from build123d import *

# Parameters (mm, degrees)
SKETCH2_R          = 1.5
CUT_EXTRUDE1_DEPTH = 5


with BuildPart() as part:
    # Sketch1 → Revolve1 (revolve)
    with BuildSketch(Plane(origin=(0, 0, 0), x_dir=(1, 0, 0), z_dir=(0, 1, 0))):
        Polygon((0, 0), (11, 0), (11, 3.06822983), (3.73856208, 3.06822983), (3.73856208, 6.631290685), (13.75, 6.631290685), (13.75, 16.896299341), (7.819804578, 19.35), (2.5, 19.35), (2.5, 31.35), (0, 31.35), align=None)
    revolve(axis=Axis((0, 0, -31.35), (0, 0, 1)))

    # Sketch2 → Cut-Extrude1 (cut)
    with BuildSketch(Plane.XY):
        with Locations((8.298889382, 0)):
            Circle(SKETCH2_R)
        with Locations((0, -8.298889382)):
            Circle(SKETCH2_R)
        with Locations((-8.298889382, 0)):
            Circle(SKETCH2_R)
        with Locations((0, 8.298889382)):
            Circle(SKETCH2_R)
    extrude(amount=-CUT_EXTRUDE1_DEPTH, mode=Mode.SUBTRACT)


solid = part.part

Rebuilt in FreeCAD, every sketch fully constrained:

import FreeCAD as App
import Part
import Sketcher


def add_polygon(sketch, points):
    """Adds a closed chain of lines whose ends are joined by coincident constraints."""
    first, n = sketch.GeometryCount, len(points)
    for a, b in zip(points, points[1:] + points[:1]):
        sketch.addGeometry(Part.LineSegment(App.Vector(*a, 0), App.Vector(*b, 0)), False)
    for i in range(n):
        sketch.addConstraint(Sketcher.Constraint("Coincident", first + i, 2, first + (i + 1) % n, 1))

doc = App.newDocument("Part")
body = doc.addObject("PartDesign::Body", "Body")

# Sketch on XZ plane
sketch1 = body.newObject("Sketcher::SketchObject", "Sketch")
sketch1.AttachmentSupport = (doc.getObject("XZ_Plane"), [""])
sketch1.MapMode = "FlatFace"
add_polygon(sketch1, [(0, 0), (11, 0), (11, -3.1), (3.7, -3.1), (3.7, -6.6), (13.8, -6.6), (13.8, -16.9), (7.8, -19.4), (2.5, -19.4), (2.5, -31.4), (0, -31.4)])  # lines 0-10
sketch1.addConstraint(Sketcher.Constraint("Horizontal", 0))
sketch1.addConstraint(Sketcher.Constraint("Vertical", 1))
sketch1.addConstraint(Sketcher.Constraint("Horizontal", 2))
sketch1.addConstraint(Sketcher.Constraint("Vertical", 3))
sketch1.addConstraint(Sketcher.Constraint("Horizontal", 4))
sketch1.addConstraint(Sketcher.Constraint("Vertical", 5))
sketch1.addConstraint(Sketcher.Constraint("Horizontal", 7))
sketch1.addConstraint(Sketcher.Constraint("Vertical", 8))
sketch1.addConstraint(Sketcher.Constraint("Horizontal", 9))
sketch1.addConstraint(Sketcher.Constraint("Vertical", 10))
sketch1.addConstraint(Sketcher.Constraint("Coincident", 10, 2, -1, 1))
sketch1.addConstraint(Sketcher.Constraint("DistanceX", 0, 1, 0, 2, 11.0))
sketch1.addConstraint(Sketcher.Constraint("DistanceY", 8, 2, 8, 1, 12.0))
sketch1.addConstraint(Sketcher.Constraint("DistanceX", 9, 2, 9, 1, 2.5))
sketch1.addConstraint(Sketcher.Constraint("DistanceY", 10, 1, 10, 2, 31.35))
sketch1.addConstraint(Sketcher.Constraint("DistanceX", -1, 1, 4, 2, 13.75))
sketch1.addConstraint(Sketcher.Constraint("DistanceY", 1, 2, 1, 1, 3.06823))
sketch1.addConstraint(Sketcher.Constraint("DistanceY", 3, 2, 3, 1, 3.563061))
sketch1.addConstraint(Sketcher.Constraint("DistanceY", 5, 2, 5, 1, 10.265009))
sketch1.addConstraint(Sketcher.Constraint("DistanceX", 2, 2, 2, 1, 7.261438))
sketch1.addConstraint(Sketcher.Constraint("DistanceX", 7, 2, 7, 1, 5.319805))
revolution = body.newObject("PartDesign::Revolution", "Revolution")
revolution.Profile = sketch1
revolution.ReferenceAxis = (sketch1, ["V_Axis"])
revolution.Angle = 360

# Sketch on XY plane
sketch2 = body.newObject("Sketcher::SketchObject", "Sketch001")
sketch2.AttachmentSupport = (doc.getObject("XY_Plane"), [""])
sketch2.MapMode = "FlatFace"
sketch2.addGeometry(Part.Circle(App.Vector(8.3, 0, 0), App.Vector(0, 0, 1), 1.5), False)
sketch2.addGeometry(Part.Circle(App.Vector(0, -8.3, 0), App.Vector(0, 0, 1), 1.5), False)
sketch2.addGeometry(Part.Circle(App.Vector(-8.3, 0, 0), App.Vector(0, 0, 1), 1.5), False)
sketch2.addGeometry(Part.Circle(App.Vector(0, 8.3, 0), App.Vector(0, 0, 1), 1.5), False)
sketch2.addConstraint(Sketcher.Constraint("Equal", 0, 1))
sketch2.addConstraint(Sketcher.Constraint("Equal", 1, 2))
sketch2.addConstraint(Sketcher.Constraint("Equal", 2, 3))
sketch2.addConstraint(Sketcher.Constraint("Symmetric", 0, 3, 2, 3, -1, 1))
sketch2.addConstraint(Sketcher.Constraint("Symmetric", 1, 3, 3, 3, -1, 1))
sketch2.addConstraint(Sketcher.Constraint("PointOnObject", 0, 3, -1))
sketch2.addConstraint(Sketcher.Constraint("PointOnObject", 1, 3, -2))
sketch2.addConstraint(Sketcher.Constraint("Diameter", 0, 3.0))
sketch2.addConstraint(Sketcher.Constraint("DistanceX", -1, 1, 0, 3, 8.298889))
sketch2.addConstraint(Sketcher.Constraint("DistanceY", 1, 3, -1, 1, 8.298889))
pocket1 = body.newObject("PartDesign::Pocket", "Pocket")
pocket1.Profile = sketch2
pocket1.Length = 5

doc.recompute()
